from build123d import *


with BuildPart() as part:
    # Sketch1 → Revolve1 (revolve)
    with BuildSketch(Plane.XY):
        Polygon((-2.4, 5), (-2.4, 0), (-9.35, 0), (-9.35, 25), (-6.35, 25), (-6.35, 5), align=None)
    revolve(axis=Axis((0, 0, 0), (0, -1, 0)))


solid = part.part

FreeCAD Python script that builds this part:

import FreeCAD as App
import Part
import Sketcher
from FreeCAD import Vector

doc = App.newDocument("Part")
params = doc.addObject("Spreadsheet::Sheet", "Params")
for row, (alias, value) in enumerate([
    ("sketch1_width", "3 mm"),
    ("sketch1_height", "5 mm"),
    ("sketch1_height2", "20 mm"),
    ("sketch1_width2", "3.95 mm"),
    ("revolution_angle", "360 deg"),
], start=1):
    params.set(f"A{row}", alias)
    params.set(f"B{row}", "=" + value)
    params.setAlias(f"B{row}", alias)

body = doc.addObject("PartDesign::Body", "Body")

# Sketch on XY plane
sketch1 = body.newObject("Sketcher::SketchObject", "Sketch")
sketch1.AttachmentSupport = (doc.getObject("XY_Plane"), [""])
sketch1.MapMode = "FlatFace"
sketch1.addGeometry([
    Part.LineSegment(Vector(-2.4, 0, 0), Vector(-2.4, 5, 0)),  # 0
    Part.LineSegment(Vector(-2.4, 5, 0), Vector(-6.3, 5, 0)),  # 1
    Part.LineSegment(Vector(-6.3, 5, 0), Vector(-6.3, 25, 0)),  # 2
    Part.LineSegment(Vector(-6.3, 25, 0), Vector(-9.3, 25, 0)),  # 3
    Part.LineSegment(Vector(-9.3, 25, 0), Vector(-9.3, 0, 0)),  # 4
    Part.LineSegment(Vector(-9.3, 0, 0), Vector(-2.4, 0, 0)),  # 5
], False)
sketch1.addConstraint([
    Sketcher.Constraint("Coincident", 0, 2, 1, 1),
    Sketcher.Constraint("Coincident", 1, 2, 2, 1),
    Sketcher.Constraint("Coincident", 2, 2, 3, 1),
    Sketcher.Constraint("Coincident", 3, 2, 4, 1),
    Sketcher.Constraint("Coincident", 4, 2, 5, 1),
    Sketcher.Constraint("Coincident", 5, 2, 0, 1),
    Sketcher.Constraint("Vertical", 0),
    Sketcher.Constraint("Horizontal", 1),
    Sketcher.Constraint("Vertical", 2),
    Sketcher.Constraint("Horizontal", 3),
    Sketcher.Constraint("Vertical", 4),
    Sketcher.Constraint("Horizontal", 5),
    Sketcher.Constraint("PointOnObject", 4, 2, -1),
    Sketcher.Constraint("DistanceX", 3, 2, 3, 1, 3.0),
    Sketcher.Constraint("DistanceY", 0, 1, 0, 2, 5.0),
    Sketcher.Constraint("DistanceY", 2, 1, 2, 2, 20.0),
    Sketcher.Constraint("DistanceX", 1, 2, 1, 1, 3.95),
    Sketcher.Constraint("DistanceX", 0, 2, -1, 1, 2.4),
])
sketch1.setExpression("Constraints[13]", "Params.sketch1_width")
sketch1.setExpression("Constraints[14]", "Params.sketch1_height")
sketch1.setExpression("Constraints[15]", "Params.sketch1_height2")
sketch1.setExpression("Constraints[16]", "Params.sketch1_width2")
revolution = body.newObject("PartDesign::Revolution", "Revolution")
revolution.Profile = sketch1
revolution.ReferenceAxis = (sketch1, ["V_Axis"])
revolution.setExpression("Angle", "Params.revolution_angle")

doc.recompute()
